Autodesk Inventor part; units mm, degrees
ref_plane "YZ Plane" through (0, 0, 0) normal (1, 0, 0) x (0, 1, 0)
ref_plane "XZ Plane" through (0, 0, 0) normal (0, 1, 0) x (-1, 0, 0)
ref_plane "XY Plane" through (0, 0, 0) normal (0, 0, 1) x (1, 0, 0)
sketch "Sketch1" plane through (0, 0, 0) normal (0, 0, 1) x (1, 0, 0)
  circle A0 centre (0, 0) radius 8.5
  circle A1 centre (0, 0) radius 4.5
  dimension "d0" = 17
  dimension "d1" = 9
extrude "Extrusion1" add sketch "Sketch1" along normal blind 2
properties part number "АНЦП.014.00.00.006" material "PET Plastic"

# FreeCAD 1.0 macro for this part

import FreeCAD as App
import Part
import Sketcher
from FreeCAD import Vector

doc = App.newDocument("Part")
body = doc.addObject("PartDesign::Body", "Body")

sketch1 = doc.addObject("Sketcher::SketchObject", "Sketch")
body.addObject(sketch1)
sketch1.AttachmentSupport = (doc.XY_Plane, [""])
sketch1.MapMode = "FlatFace"
sketch1.addGeometry([
    Part.Circle(Vector(0, 0, 0), Vector(0, 0, 1), 8.5),
    Part.Circle(Vector(0, 0, 0), Vector(0, 0, 1), 4.5),
], False)
sketch1.addConstraint([
    Sketcher.Constraint("Coincident", 0, 3, -1, 1),
    Sketcher.Constraint("Coincident", 1, 3, -1, 1),
    Sketcher.Constraint("Diameter", 0, 17.0),
    Sketcher.Constraint("Diameter", 1, 9.0),
])
pad1 = doc.addObject("PartDesign::Pad", "Pad")
body.addObject(pad1)
pad1.Profile = sketch1
pad1.Length = 2

doc.recompute()
